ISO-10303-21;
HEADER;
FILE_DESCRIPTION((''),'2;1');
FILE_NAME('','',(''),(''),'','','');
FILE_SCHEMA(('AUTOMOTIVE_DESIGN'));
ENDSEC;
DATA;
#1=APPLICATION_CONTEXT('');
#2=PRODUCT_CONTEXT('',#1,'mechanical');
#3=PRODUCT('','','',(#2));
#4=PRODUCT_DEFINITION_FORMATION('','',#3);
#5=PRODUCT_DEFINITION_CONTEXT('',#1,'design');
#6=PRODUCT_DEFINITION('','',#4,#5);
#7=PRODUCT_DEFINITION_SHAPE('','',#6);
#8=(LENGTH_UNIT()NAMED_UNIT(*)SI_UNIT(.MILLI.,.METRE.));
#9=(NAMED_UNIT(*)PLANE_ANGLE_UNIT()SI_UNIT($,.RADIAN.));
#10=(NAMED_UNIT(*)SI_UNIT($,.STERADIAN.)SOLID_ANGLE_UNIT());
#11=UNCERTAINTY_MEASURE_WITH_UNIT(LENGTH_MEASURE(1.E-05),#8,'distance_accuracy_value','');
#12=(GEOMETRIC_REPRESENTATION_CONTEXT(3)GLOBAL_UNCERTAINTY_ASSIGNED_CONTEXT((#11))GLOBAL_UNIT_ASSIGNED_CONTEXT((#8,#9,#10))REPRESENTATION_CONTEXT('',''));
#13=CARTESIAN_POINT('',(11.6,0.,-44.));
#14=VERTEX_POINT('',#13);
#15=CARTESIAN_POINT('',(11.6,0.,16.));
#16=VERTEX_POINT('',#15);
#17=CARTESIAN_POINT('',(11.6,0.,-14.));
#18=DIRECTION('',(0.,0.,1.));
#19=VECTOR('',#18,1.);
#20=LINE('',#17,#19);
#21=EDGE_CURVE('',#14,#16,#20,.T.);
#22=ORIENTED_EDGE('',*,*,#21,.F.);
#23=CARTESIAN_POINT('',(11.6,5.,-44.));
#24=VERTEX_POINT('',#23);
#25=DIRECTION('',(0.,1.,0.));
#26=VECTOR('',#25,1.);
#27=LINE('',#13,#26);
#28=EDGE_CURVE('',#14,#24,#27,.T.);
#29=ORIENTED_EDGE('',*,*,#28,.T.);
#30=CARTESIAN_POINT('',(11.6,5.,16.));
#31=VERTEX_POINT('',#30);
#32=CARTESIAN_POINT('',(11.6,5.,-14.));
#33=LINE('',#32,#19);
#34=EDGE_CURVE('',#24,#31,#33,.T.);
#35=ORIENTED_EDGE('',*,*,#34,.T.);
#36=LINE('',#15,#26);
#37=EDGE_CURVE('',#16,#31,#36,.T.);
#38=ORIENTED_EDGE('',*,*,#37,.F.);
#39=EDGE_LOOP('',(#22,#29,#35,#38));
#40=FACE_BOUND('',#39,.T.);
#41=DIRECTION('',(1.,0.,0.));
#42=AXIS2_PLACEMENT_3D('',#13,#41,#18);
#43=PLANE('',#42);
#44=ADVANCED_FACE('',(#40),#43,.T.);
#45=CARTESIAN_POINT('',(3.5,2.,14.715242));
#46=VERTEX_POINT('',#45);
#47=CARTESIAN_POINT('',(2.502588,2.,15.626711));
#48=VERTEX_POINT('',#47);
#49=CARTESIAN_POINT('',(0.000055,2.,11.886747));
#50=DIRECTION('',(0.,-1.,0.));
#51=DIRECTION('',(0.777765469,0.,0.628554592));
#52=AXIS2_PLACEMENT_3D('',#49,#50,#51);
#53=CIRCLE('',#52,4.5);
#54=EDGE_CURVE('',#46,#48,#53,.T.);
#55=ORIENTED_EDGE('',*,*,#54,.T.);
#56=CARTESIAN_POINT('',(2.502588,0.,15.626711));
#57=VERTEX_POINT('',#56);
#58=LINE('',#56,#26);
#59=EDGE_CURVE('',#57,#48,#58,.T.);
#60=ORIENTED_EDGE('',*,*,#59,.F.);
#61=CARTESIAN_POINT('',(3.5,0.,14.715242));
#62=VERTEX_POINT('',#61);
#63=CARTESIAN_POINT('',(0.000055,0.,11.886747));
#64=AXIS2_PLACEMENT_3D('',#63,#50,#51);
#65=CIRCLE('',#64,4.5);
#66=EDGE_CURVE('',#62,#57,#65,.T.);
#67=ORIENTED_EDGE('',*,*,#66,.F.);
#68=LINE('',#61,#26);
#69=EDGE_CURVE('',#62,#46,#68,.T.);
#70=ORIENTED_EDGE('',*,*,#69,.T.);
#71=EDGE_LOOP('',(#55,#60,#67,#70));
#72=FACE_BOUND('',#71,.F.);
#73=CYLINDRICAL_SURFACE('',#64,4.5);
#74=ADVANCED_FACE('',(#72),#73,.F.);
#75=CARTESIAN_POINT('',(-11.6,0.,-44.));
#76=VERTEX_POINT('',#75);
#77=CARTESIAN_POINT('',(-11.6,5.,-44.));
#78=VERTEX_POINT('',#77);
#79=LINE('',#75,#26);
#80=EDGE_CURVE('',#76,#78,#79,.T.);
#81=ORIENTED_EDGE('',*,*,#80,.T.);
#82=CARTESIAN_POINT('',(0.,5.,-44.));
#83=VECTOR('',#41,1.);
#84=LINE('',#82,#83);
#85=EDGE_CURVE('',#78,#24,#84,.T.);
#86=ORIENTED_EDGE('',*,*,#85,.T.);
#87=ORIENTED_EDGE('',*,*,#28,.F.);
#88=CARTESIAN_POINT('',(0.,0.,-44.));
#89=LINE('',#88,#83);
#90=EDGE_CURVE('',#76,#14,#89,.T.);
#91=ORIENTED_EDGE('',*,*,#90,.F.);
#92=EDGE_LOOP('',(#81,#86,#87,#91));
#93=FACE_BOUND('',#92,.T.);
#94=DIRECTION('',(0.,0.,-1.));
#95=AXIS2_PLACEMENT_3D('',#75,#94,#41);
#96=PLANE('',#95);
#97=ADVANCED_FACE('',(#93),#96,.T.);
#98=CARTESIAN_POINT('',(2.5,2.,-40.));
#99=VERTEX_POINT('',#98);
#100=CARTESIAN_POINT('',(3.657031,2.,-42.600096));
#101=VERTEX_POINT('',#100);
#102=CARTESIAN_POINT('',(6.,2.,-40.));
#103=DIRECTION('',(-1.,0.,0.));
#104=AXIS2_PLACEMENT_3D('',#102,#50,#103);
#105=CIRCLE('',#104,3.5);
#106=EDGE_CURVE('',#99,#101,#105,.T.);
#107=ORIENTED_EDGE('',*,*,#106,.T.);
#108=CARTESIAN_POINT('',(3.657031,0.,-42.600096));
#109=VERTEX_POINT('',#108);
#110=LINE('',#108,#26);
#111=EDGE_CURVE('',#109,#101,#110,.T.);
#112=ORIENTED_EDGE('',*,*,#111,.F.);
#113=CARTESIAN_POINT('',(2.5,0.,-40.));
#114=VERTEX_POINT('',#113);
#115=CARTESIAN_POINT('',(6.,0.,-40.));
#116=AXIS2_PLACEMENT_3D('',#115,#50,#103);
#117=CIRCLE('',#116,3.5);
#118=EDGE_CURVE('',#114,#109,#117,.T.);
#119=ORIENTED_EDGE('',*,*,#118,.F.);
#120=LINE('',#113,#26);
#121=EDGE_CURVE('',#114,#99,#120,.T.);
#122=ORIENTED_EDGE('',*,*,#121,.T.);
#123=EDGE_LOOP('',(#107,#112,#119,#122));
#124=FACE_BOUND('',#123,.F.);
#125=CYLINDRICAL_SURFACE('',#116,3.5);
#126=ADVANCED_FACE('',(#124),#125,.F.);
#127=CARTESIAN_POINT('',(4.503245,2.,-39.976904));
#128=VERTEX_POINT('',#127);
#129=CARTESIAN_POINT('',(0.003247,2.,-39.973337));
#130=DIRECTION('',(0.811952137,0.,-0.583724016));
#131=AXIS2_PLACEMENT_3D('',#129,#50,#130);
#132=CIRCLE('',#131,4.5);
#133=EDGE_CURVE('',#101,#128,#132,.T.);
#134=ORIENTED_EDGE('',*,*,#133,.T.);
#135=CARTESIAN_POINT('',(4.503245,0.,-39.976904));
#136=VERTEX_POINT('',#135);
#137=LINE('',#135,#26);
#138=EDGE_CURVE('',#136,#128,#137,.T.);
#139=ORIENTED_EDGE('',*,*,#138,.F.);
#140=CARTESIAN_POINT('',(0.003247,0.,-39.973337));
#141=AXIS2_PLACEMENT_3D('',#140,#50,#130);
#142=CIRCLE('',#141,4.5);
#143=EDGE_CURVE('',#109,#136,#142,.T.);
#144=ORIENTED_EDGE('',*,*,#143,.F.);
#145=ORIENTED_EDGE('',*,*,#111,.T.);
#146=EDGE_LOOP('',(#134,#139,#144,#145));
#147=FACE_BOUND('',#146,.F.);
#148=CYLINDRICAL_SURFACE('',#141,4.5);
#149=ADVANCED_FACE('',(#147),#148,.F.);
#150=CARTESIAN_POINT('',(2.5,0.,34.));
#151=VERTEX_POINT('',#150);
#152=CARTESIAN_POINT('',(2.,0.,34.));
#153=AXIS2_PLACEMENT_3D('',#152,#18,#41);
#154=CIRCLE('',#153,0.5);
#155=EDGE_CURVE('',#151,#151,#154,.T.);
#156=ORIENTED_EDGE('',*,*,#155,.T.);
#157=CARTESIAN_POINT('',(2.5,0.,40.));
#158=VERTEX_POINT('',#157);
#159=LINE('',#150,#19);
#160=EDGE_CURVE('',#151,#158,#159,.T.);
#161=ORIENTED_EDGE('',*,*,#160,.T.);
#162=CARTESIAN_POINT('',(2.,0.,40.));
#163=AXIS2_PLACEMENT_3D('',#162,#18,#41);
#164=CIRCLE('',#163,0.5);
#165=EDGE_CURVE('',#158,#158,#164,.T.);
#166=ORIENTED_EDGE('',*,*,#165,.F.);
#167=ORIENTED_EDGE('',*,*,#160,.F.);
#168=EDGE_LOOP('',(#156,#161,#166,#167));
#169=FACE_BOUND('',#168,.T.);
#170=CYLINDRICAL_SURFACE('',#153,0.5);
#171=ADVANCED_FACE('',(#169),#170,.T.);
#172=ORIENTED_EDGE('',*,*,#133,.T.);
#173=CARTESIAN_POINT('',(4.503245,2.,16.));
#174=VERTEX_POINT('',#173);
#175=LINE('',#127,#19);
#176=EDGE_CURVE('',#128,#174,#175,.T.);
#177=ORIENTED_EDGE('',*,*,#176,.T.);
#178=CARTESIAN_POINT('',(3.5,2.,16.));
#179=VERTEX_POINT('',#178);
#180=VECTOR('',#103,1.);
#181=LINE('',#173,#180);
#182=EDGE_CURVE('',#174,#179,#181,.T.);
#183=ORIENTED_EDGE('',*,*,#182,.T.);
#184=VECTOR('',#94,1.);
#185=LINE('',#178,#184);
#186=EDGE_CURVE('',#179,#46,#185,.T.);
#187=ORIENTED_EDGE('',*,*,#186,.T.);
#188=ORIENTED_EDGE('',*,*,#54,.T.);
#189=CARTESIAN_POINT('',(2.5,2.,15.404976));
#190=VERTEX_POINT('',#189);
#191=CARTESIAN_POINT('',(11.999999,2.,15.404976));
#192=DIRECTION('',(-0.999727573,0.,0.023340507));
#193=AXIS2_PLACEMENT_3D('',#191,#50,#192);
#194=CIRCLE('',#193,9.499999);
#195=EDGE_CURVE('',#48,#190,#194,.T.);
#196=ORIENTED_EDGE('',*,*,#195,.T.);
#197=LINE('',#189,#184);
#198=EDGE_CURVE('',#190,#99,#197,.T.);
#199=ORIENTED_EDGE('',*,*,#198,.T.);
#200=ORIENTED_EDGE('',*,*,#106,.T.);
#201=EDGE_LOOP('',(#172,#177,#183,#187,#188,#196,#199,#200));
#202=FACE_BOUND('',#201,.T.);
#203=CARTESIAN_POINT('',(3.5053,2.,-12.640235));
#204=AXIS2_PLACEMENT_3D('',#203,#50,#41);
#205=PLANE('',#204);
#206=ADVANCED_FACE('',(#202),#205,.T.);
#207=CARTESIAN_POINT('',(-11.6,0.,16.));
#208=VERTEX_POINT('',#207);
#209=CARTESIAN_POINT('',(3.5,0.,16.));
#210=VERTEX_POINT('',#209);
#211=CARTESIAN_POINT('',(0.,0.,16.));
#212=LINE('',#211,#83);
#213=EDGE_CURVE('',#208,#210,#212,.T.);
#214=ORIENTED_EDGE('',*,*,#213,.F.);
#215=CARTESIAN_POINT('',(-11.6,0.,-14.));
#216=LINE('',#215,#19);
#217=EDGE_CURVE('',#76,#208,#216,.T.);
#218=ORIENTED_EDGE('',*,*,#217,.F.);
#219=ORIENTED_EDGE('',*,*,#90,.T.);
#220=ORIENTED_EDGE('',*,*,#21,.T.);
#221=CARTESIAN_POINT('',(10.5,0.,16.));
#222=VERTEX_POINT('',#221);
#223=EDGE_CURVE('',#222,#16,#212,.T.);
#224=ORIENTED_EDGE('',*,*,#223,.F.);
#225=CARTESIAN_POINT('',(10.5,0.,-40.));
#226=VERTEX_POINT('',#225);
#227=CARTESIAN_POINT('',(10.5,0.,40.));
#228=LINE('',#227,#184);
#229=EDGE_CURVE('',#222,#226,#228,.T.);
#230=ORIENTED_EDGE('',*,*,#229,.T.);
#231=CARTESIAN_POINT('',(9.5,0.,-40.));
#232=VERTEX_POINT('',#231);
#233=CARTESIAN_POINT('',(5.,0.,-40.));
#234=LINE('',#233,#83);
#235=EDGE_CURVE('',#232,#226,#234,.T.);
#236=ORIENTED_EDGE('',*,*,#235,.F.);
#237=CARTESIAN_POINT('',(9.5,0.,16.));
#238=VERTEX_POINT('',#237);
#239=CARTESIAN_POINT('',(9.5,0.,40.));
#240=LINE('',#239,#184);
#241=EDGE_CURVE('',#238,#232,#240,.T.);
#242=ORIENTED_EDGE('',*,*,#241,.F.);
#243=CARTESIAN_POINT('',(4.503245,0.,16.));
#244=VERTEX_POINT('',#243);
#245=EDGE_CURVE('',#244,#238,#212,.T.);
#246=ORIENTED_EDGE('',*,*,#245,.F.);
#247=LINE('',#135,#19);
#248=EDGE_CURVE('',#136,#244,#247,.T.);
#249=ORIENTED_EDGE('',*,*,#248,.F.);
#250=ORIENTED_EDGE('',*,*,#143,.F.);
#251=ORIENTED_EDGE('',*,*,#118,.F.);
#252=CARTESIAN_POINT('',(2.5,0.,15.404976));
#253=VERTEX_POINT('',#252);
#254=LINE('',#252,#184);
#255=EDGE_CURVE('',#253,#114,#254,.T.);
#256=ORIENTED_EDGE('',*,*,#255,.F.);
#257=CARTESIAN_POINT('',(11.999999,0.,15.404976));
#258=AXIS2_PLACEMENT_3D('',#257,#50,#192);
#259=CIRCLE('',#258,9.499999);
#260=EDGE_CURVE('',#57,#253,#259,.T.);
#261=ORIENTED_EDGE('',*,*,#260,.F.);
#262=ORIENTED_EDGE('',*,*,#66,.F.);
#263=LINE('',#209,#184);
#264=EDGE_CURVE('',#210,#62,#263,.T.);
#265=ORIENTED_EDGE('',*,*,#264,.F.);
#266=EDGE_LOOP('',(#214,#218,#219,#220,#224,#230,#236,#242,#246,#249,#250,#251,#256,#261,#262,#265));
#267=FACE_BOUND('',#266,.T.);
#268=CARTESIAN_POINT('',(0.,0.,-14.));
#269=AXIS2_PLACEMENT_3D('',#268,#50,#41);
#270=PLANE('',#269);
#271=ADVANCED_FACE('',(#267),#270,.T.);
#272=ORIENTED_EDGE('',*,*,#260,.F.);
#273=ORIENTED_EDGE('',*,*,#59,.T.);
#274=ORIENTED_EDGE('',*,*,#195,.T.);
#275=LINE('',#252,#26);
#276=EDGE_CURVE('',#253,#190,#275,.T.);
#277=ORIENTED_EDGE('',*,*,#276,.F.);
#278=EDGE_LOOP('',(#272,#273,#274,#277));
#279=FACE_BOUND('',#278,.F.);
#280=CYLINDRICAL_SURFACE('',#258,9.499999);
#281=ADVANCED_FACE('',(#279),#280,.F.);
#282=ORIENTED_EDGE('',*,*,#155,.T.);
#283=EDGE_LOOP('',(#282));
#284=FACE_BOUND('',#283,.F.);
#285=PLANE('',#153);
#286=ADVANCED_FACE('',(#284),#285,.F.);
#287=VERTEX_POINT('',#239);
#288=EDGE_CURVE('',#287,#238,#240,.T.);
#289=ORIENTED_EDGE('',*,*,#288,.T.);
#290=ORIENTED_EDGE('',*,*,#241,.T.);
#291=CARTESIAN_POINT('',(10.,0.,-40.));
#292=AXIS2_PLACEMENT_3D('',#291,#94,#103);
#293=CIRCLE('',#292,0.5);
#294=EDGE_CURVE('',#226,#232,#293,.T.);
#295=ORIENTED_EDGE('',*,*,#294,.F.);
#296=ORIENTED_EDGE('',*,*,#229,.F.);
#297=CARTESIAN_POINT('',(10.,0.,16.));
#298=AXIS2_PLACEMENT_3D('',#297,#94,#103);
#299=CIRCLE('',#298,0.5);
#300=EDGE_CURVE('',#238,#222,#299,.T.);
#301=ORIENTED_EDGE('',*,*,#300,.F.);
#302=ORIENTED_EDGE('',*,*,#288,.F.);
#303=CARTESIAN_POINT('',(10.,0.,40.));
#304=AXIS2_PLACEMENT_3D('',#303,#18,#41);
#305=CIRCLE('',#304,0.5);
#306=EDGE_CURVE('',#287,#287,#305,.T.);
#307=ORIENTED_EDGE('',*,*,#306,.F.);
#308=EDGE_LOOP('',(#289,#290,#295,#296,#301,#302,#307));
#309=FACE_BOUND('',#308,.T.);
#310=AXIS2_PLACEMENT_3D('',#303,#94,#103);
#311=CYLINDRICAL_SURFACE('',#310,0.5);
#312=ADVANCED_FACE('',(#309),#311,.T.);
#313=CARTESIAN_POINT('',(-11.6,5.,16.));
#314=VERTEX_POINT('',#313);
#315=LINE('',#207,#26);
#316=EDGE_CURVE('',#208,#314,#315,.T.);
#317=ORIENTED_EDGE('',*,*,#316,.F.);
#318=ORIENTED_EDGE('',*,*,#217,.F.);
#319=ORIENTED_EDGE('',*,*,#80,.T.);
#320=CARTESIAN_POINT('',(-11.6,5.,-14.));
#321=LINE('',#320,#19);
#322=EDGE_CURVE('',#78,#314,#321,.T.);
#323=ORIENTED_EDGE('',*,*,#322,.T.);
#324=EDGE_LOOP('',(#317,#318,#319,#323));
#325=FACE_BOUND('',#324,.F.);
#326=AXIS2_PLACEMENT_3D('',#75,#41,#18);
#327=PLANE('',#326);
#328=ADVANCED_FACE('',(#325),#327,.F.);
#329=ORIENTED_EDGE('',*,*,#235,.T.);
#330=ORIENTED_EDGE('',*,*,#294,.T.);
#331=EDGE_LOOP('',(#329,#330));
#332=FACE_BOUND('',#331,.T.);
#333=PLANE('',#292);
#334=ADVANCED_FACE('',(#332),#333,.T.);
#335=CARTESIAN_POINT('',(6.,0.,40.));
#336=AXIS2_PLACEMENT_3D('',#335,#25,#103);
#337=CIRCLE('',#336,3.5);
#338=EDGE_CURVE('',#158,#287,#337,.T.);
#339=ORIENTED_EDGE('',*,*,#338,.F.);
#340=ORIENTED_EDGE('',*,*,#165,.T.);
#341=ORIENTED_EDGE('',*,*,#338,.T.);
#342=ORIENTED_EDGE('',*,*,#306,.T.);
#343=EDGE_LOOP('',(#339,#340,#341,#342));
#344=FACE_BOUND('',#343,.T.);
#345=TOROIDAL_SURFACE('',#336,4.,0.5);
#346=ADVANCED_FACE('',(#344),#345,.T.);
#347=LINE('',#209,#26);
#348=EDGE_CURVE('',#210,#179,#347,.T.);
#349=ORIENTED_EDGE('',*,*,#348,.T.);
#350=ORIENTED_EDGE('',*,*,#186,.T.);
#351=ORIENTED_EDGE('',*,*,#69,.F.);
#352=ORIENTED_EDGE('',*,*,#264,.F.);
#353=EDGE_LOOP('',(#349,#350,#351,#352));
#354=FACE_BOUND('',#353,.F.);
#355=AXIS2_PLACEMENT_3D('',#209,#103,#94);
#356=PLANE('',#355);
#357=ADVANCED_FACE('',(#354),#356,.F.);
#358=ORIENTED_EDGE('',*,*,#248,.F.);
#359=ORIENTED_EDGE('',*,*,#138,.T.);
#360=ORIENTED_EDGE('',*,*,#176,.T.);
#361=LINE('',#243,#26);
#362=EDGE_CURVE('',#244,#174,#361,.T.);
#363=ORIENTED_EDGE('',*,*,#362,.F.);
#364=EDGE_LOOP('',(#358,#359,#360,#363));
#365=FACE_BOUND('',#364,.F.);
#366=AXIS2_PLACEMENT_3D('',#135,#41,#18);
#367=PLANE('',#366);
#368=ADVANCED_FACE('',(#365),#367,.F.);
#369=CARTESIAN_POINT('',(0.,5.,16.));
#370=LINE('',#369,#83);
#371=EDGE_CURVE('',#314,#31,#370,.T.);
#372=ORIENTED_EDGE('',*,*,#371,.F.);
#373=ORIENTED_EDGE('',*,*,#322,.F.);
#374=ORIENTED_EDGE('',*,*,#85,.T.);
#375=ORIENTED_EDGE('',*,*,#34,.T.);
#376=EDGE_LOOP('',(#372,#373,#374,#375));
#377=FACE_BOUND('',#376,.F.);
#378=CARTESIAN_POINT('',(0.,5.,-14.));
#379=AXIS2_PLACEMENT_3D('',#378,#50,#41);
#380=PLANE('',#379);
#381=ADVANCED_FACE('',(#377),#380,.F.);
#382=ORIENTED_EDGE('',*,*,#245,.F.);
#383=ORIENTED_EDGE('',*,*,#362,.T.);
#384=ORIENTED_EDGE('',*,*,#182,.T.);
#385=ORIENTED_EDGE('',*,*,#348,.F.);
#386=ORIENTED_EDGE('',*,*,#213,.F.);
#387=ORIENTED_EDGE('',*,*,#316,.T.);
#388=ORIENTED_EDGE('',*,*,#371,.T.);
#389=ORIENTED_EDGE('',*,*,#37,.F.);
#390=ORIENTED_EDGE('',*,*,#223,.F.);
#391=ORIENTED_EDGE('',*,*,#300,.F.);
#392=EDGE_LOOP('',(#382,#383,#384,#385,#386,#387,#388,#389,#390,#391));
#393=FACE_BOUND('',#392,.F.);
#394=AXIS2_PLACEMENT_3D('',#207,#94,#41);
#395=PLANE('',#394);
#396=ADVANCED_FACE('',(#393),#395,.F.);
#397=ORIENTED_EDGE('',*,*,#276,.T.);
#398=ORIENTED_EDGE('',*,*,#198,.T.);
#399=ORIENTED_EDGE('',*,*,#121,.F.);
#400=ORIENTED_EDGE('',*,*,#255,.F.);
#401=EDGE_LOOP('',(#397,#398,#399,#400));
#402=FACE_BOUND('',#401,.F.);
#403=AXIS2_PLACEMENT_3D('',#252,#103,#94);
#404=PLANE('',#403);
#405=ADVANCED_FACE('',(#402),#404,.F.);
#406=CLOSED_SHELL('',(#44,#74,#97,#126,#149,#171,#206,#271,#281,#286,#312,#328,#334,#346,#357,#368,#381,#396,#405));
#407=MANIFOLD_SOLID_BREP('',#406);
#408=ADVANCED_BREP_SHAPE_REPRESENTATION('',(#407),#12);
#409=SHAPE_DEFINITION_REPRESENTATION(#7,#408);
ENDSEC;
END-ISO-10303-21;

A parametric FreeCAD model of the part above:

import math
import FreeCAD as App
import Part
import Sketcher

V = App.Vector

doc = App.newDocument("Part")
body = doc.addObject("PartDesign::Body", "Body")

sketch1 = doc.addObject("Sketcher::SketchObject", "Sketch")
body.addObject(sketch1)
sketch1.AttachmentSupport = (doc.XZ_Plane, [""])
sketch1.MapMode = "FlatFace"
sketch1.addGeometry([
    Part.LineSegment(V(-12, 16, 0), V(-12, -44, 0)),
    Part.LineSegment(V(-12, -44, 0), V(12, -44, 0)),
    Part.LineSegment(V(12, -44, 0), V(12, 16, 0)),
    Part.LineSegment(V(12, 16, 0), V(-12, 16, 0)),
], False)
sketch1.addConstraint([
    Sketcher.Constraint("Coincident", 0, 2, 1, 1),
    Sketcher.Constraint("Coincident", 1, 2, 2, 1),
    Sketcher.Constraint("Coincident", 2, 2, 3, 1),
    Sketcher.Constraint("Coincident", 3, 2, 0, 1),
    Sketcher.Constraint("Vertical", 0),
    Sketcher.Constraint("Horizontal", 1),
    Sketcher.Constraint("Vertical", 2),
    Sketcher.Constraint("Horizontal", 3),
    Sketcher.Constraint("DistanceY", 0, 2, 0, 1, 60.0),
    Sketcher.Constraint("DistanceX", 1, 1, 1, 2, 23.2),
    Sketcher.Constraint("DistanceY", 0, 2, -1, 1, 44.0),
    Sketcher.Constraint("DistanceX", 0, 2, -1, 1, 11.6),
])
pad1 = doc.addObject("PartDesign::Pad", "Pad")
body.addObject(pad1)
pad1.Profile = sketch1
pad1.Length = 5
pad1.Reversed = True

sketch2 = doc.addObject("Sketcher::SketchObject", "Sketch001")
body.addObject(sketch2)
sketch2.AttachmentSupport = (doc.XZ_Plane, [""])
sketch2.MapMode = "FlatFace"
sketch2.addGeometry([
    Part.LineSegment(V(4.5, -39.98, 0), V(4.5, 16, 0)),
    Part.LineSegment(V(4.5, 16, 0), V(3.5, 16, 0)),
    Part.LineSegment(V(3.5, 16, 0), V(3.5, 14.72, 0)),
    Part.ArcOfCircle(Part.Circle(V(0, 11.89, 0), V(0, 0, 1), 4.5), math.radians(38.94), math.radians(56.21)),
    Part.ArcOfCircle(Part.Circle(V(12, 15.4, 0), V(0, 0, 1), 9.5), math.radians(178.66), math.radians(180)),
    Part.LineSegment(V(2.5, 15.4, 0), V(2.5, -40, 0)),
    Part.ArcOfCircle(Part.Circle(V(6, -40, 0), V(0, 0, 1), 3.5), math.radians(180), math.radians(228)),
    Part.ArcOfCircle(Part.Circle(V(0, -39.97, 0), V(0, 0, 1), 4.5), math.radians(-36), math.radians(0)),
], False)
sketch2.addConstraint([
    Sketcher.Constraint("Coincident", 0, 2, 1, 1),
    Sketcher.Constraint("Coincident", 1, 2, 2, 1),
    Sketcher.Constraint("Coincident", 2, 2, 3, 1),
    Sketcher.Constraint("Coincident", 3, 2, 4, 1),
    Sketcher.Constraint("Tangent", 4, 2, 5, 1),
    Sketcher.Constraint("Tangent", 5, 2, 6, 1),
    Sketcher.Constraint("Coincident", 6, 2, 7, 1),
    Sketcher.Constraint("Coincident", 7, 2, 0, 1),
    Sketcher.Constraint("Vertical", 0),
    Sketcher.Constraint("Horizontal", 1),
    Sketcher.Constraint("Vertical", 2),
    Sketcher.Constraint("Vertical", 5),
    Sketcher.Constraint("Equal", 3, 7),
    Sketcher.Constraint("Radius", 3, 4.5),
    Sketcher.Constraint("Radius", 4, 9.499999),
    Sketcher.Constraint("Radius", 6, 3.5),
    Sketcher.Constraint("DistanceX", -1, 1, 4, 3, 11.999999),
    Sketcher.Constraint("DistanceY", 6, 3, -1, 1, 40.0),
    Sketcher.Constraint("DistanceY", -1, 1, 0, 2, 16.0),
    Sketcher.Constraint("DistanceX", 4, 2, 1, 2, 1.0),
    Sketcher.Constraint("DistanceX", 1, 2, 1, 1, 1.003245),
    Sketcher.Constraint("DistanceY", 0, 1, 0, 2, 55.976904),
    Sketcher.Constraint("DistanceY", 2, 2, 2, 1, 1.284757),
    Sketcher.Constraint("DistanceY", 5, 2, 5, 1, 55.404976),
    Sketcher.Constraint("DistanceX", -1, 1, 3, 2, 2.502588),
    Sketcher.Constraint("DistanceX", -1, 1, 6, 2, 3.657031),
])
pocket1 = doc.addObject("PartDesign::Pocket", "Pocket")
body.addObject(pocket1)
pocket1.Profile = sketch2
pocket1.Length = 2

sketch3 = doc.addObject("Sketcher::SketchObject", "Sketch002")
body.addObject(sketch3)
sketch3.AttachmentSupport = (doc.XY_Plane, [""])
sketch3.MapMode = "FlatFace"
sketch3.AttachmentOffset = App.Placement(V(0, 0, 34), App.Rotation())
sketch3.addGeometry(Part.Circle(V(2, 0, 0), V(0, 0, 1), 0.5), False)
sketch3.addConstraint([
    Sketcher.Constraint("PointOnObject", 0, 3, -1),
    Sketcher.Constraint("Diameter", 0, 1.0),
    Sketcher.Constraint("DistanceX", -1, 1, 0, 3, 2.0),
])

sketch4 = doc.addObject("Sketcher::SketchObject", "Sketch003")
body.addObject(sketch4)
sketch4.AttachmentSupport = (doc.XZ_Plane, [""])
sketch4.MapMode = "FlatFace"
sketch4.addGeometry([
    Part.LineSegment(V(2, 34, 0), V(2, 40, 0)),
    Part.ArcOfCircle(Part.Circle(V(6, 40, 0), V(0, 0, 1), 4), math.radians(0), math.radians(180)),
    Part.LineSegment(V(10, 40, 0), V(10, -40, 0)),
], False)
sketch4.addConstraint([
    Sketcher.Constraint("Tangent", 0, 2, 1, 2),
    Sketcher.Constraint("Tangent", 1, 1, 2, 1),
    Sketcher.Constraint("Vertical", 0),
    Sketcher.Constraint("Vertical", 2),
    Sketcher.Constraint("Radius", 1, 4.0),
    Sketcher.Constraint("DistanceY", 0, 1, 0, 2, 6.0),
    Sketcher.Constraint("DistanceY", 2, 2, 2, 1, 80.0),
    Sketcher.Constraint("DistanceX", -1, 1, 1, 3, 6.0),
    Sketcher.Constraint("DistanceY", -1, 1, 1, 3, 40.0),
])
doc.recompute()

additivepipe = doc.addObject("PartDesign::AdditivePipe", "AdditivePipe")
body.addObject(additivepipe)
additivepipe.Profile = sketch3
additivepipe.Spine = (sketch4, ["Edge1", "Edge2", "Edge3"])

doc.recompute()
